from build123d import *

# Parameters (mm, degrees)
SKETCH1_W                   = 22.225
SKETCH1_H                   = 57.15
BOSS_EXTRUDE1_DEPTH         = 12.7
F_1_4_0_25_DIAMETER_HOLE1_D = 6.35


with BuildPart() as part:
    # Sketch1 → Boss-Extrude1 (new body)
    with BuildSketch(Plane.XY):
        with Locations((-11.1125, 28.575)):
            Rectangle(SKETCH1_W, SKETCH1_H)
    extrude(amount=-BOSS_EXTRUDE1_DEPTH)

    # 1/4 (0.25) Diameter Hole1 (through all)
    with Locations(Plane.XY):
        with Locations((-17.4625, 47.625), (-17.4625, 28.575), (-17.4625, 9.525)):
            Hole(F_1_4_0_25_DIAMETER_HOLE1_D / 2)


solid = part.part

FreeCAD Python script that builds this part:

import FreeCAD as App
import Part
import Sketcher

V = App.Vector
Q = App.Units.Quantity


def add_polygon(sketch, points):
    """Adds a closed chain of lines whose ends are joined by coincident constraints."""
    first, n = sketch.GeometryCount, len(points)
    for a, b in zip(points, points[1:] + points[:1]):
        sketch.addGeometry(Part.LineSegment(App.Vector(*a, 0), App.Vector(*b, 0)), False)
    for i in range(n):
        sketch.addConstraint(Sketcher.Constraint("Coincident", first + i, 2, first + (i + 1) % n, 1))

doc = App.newDocument("Part")
body = doc.addObject("PartDesign::Body", "Body")

sketch1 = body.newObject("Sketcher::SketchObject", "Sketch")
sketch1.AttachmentSupport = (doc.getObject("XY_Plane"), [""])
sketch1.MapMode = "FlatFace"
add_polygon(sketch1, [(-22, 57), (-22, 0), (0, 0), (0, 57)])
sketch1.addConstraint([
    Sketcher.Constraint("Vertical", 0),
    Sketcher.Constraint("Horizontal", 1),
    Sketcher.Constraint("Vertical", 2),
    Sketcher.Constraint("Horizontal", 3),
    Sketcher.Constraint("Coincident", 1, 2, -1, 1),
    Sketcher.Constraint("DistanceY", 0, 2, 0, 1, Q("2.25 in")),
    Sketcher.Constraint("DistanceX", 1, 1, 1, 2, Q("0.875 in")),
])
pad1 = body.newObject("PartDesign::Pad", "Pad")
pad1.Profile = sketch1
pad1.Length = Q("0.5 in")
pad1.Reversed = True

sketch2 = body.newObject("Sketcher::SketchObject", "Sketch001")
sketch2.AttachmentSupport = (doc.getObject("XY_Plane"), [""])
sketch2.MapMode = "FlatFace"
sketch2.addGeometry([
    Part.Circle(V(-17.5, 47.6, 0), V(0, 0, 1), 3.2),
    Part.Circle(V(-17.5, 28.6, 0), V(0, 0, 1), 3.2),
    Part.Circle(V(-17.5, 9.5, 0), V(0, 0, 1), 3.2),
], False)
sketch2.addConstraint([
    Sketcher.Constraint("Equal", 0, 1),
    Sketcher.Constraint("Equal", 1, 2),
    Sketcher.Constraint("Vertical", 0, 3, 1, 3),
    Sketcher.Constraint("Vertical", 1, 3, 2, 3),
    Sketcher.Constraint("Diameter", 0, Q("0.25 in")),
    Sketcher.Constraint("DistanceY", 2, 3, 0, 3, Q("1.5 in")),
    Sketcher.Constraint("DistanceY", 1, 3, 0, 3, Q("0.75 in")),
    Sketcher.Constraint("DistanceX", 0, 3, -1, 1, Q("0.6875 in")),
    Sketcher.Constraint("DistanceY", -1, 1, 0, 3, Q("1.875 in")),
])
doc.recompute()
hole = body.newObject("PartDesign::Hole", "Hole")
hole.Profile = sketch2
hole.ThreadType = "None"
hole.Diameter = Q("0.25 in")
hole.DepthType = "ThroughAll"

doc.recompute()
